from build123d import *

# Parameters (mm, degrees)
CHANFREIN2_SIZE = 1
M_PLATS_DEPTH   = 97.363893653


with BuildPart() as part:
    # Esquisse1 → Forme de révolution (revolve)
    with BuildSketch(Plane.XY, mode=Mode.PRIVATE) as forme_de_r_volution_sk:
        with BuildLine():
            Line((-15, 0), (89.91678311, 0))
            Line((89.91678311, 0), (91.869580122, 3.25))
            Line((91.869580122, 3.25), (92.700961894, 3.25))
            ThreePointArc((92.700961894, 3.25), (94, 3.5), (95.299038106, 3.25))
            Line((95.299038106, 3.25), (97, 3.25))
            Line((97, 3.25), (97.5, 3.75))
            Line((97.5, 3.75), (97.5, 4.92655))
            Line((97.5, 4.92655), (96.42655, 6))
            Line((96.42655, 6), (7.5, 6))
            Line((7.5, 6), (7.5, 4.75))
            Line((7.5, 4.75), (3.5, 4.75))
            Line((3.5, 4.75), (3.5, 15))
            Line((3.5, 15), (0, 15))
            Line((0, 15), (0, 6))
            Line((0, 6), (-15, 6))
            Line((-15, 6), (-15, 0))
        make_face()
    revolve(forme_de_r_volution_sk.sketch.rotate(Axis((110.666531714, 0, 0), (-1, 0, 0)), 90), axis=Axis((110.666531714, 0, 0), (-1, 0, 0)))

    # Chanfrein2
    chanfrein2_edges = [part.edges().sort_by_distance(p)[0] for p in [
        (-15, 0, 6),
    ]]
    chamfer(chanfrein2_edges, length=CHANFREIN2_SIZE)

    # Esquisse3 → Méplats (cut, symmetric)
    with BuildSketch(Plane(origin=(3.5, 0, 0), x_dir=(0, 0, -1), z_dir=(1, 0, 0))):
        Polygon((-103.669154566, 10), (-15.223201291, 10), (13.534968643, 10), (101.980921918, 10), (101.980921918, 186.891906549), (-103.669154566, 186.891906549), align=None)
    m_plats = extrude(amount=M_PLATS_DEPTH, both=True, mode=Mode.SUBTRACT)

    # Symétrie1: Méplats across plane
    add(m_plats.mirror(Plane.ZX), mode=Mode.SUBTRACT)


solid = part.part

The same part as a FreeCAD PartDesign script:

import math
import FreeCAD as App
import Part
import Sketcher
from FreeCAD import Vector
Q = App.Units.Quantity


def edges_at(feature, points):
    """Names of the edges that pass closest to the given points."""
    edges = feature.Shape.Edges
    near = lambda p: min(range(len(edges)), key=lambda i: edges[i].distToShape(Part.Vertex(*p))[0])
    return sorted({f"Edge{near(p) + 1}" for p in points})

doc = App.newDocument("Part")
body = doc.addObject("PartDesign::Body", "Body")

# Sketch on XY plane
sketch1 = body.newObject("Sketcher::SketchObject", "Sketch")
sketch1.AttachmentSupport = (doc.getObject("XY_Plane"), [""])
sketch1.MapMode = "FlatFace"
sketch1.addGeometry([
    Part.LineSegment(Vector(-15, 0, 0), Vector(89.9, 0, 0)),  # 0
    Part.LineSegment(Vector(89.9, 0, 0), Vector(91.9, 3.2, 0)),  # 1
    Part.LineSegment(Vector(91.9, 3.2, 0), Vector(92.7, 3.2, 0)),  # 2
    Part.ArcOfCircle(Part.Circle(Vector(94, 0, 0), Vector(0, 0, 1), 3.5), math.radians(68), math.radians(112)),  # 3
    Part.LineSegment(Vector(95.3, 3.2, 0), Vector(97, 3.2, 0)),  # 4
    Part.LineSegment(Vector(97, 3.2, 0), Vector(97.5, 3.8, 0)),  # 5
    Part.LineSegment(Vector(97.5, 3.8, 0), Vector(97.5, 4.9, 0)),  # 6
    Part.LineSegment(Vector(97.5, 4.9, 0), Vector(96.4, 6, 0)),  # 7
    Part.LineSegment(Vector(96.4, 6, 0), Vector(7.5, 6, 0)),  # 8
    Part.LineSegment(Vector(7.5, 6, 0), Vector(7.5, 4.8, 0)),  # 9
    Part.LineSegment(Vector(7.5, 4.8, 0), Vector(3.5, 4.8, 0)),  # 10
    Part.LineSegment(Vector(3.5, 4.8, 0), Vector(3.5, 15, 0)),  # 11
    Part.LineSegment(Vector(3.5, 15, 0), Vector(0, 15, 0)),  # 12
    Part.LineSegment(Vector(0, 15, 0), Vector(0, 6, 0)),  # 13
    Part.LineSegment(Vector(0, 6, 0), Vector(-15, 6, 0)),  # 14
    Part.LineSegment(Vector(-15, 6, 0), Vector(-15, 0, 0)),  # 15
], False)
sketch1.addConstraint([
    Sketcher.Constraint("Coincident", 0, 2, 1, 1),
    Sketcher.Constraint("Coincident", 1, 2, 2, 1),
    Sketcher.Constraint("Coincident", 2, 2, 3, 2),
    Sketcher.Constraint("Coincident", 3, 1, 4, 1),
    Sketcher.Constraint("Coincident", 4, 2, 5, 1),
    Sketcher.Constraint("Coincident", 5, 2, 6, 1),
    Sketcher.Constraint("Coincident", 6, 2, 7, 1),
    Sketcher.Constraint("Coincident", 7, 2, 8, 1),
    Sketcher.Constraint("Coincident", 8, 2, 9, 1),
    Sketcher.Constraint("Coincident", 9, 2, 10, 1),
    Sketcher.Constraint("Coincident", 10, 2, 11, 1),
    Sketcher.Constraint("Coincident", 11, 2, 12, 1),
    Sketcher.Constraint("Coincident", 12, 2, 13, 1),
    Sketcher.Constraint("Coincident", 13, 2, 14, 1),
    Sketcher.Constraint("Coincident", 14, 2, 15, 1),
    Sketcher.Constraint("Coincident", 15, 2, 0, 1),
    Sketcher.Constraint("Horizontal", 0),
    Sketcher.Constraint("Horizontal", 2),
    Sketcher.Constraint("Horizontal", 4),
    Sketcher.Constraint("Vertical", 6),
    Sketcher.Constraint("Horizontal", 8),
    Sketcher.Constraint("Vertical", 9),
    Sketcher.Constraint("Horizontal", 10),
    Sketcher.Constraint("Vertical", 11),
    Sketcher.Constraint("Horizontal", 12),
    Sketcher.Constraint("Vertical", 13),
    Sketcher.Constraint("Horizontal", 14),
    Sketcher.Constraint("Vertical", 15),
    Sketcher.Constraint("PointOnObject", 3, 3, -1),
    Sketcher.Constraint("PointOnObject", 0, 2, -1),
    Sketcher.Constraint("PointOnObject", 12, 2, -2),
    Sketcher.Constraint("Perpendicular", 5, 7),
    Sketcher.Constraint("Horizontal", 2, 2, 3, 1),
    Sketcher.Constraint("Horizontal", 8, 2, 13, 2),
    Sketcher.Constraint("Radius", 3, 3.5),
    Sketcher.Constraint("DistanceX", 10, 2, 10, 1, 4.0),
    Sketcher.Constraint("DistanceX", 14, 2, 14, 1, 15.0),
    Sketcher.Constraint("DistanceY", 13, 2, 13, 1, 9.0),
    Sketcher.Constraint("DistanceY", 15, 2, 15, 1, 6.0),
    Sketcher.Constraint("Angle", 1, Q("59 deg")),
    Sketcher.Constraint("Angle", 5, Q("45 deg")),
    Sketcher.Constraint("DistanceX", 12, 2, 12, 1, 3.5),
    Sketcher.Constraint("DistanceX", -1, 1, 3, 3, 94.0),
    Sketcher.Constraint("DistanceX", -1, 1, 4, 2, 97.0),
    Sketcher.Constraint("DistanceY", 9, 2, 9, 1, 1.25),
    Sketcher.Constraint("DistanceX", -1, 1, 5, 2, 97.5),
    Sketcher.Constraint("DistanceY", 1, 2, 9, 2, 1.5),
    Sketcher.Constraint("DistanceX", 2, 1, 2, 2, 0.831382),
    Sketcher.Constraint("DistanceX", 8, 2, 8, 1, 88.92655),
])
revolution = body.newObject("PartDesign::Revolution", "Revolution")
revolution.Profile = sketch1
revolution.ReferenceAxis = (sketch1, ["H_Axis"])
revolution.Angle = 360
doc.recompute()

chamfer = body.newObject("PartDesign::Chamfer", "Chamfer")
chamfer.Base = (revolution, edges_at(revolution, [(-15, 0, 6)]))
chamfer.Size = 1

# Sketch on YZ plane
sketch2 = body.newObject("Sketcher::SketchObject", "Sketch001")
sketch2.AttachmentSupport = (doc.getObject("YZ_Plane"), [""])
sketch2.MapMode = "FlatFace"
sketch2.AttachmentOffset = App.Placement(Vector(0, 0, 3.5), App.Rotation())
sketch2.addGeometry([
    Part.LineSegment(Vector(10, 104, 0), Vector(10, -102, 0)),
    Part.LineSegment(Vector(10, -102, 0), Vector(187, -102, 0)),
    Part.LineSegment(Vector(187, -102, 0), Vector(187, 104, 0)),
    Part.LineSegment(Vector(187, 104, 0), Vector(10, 104, 0)),
], False)
sketch2.addConstraint([
    Sketcher.Constraint("Coincident", 0, 2, 1, 1),
    Sketcher.Constraint("Coincident", 1, 2, 2, 1),
    Sketcher.Constraint("Coincident", 2, 2, 3, 1),
    Sketcher.Constraint("Coincident", 3, 2, 0, 1),
    Sketcher.Constraint("Vertical", 0),
    Sketcher.Constraint("Horizontal", 1),
    Sketcher.Constraint("Vertical", 2),
    Sketcher.Constraint("Horizontal", 3),
    Sketcher.Constraint("DistanceX", -1, 1, 0, 2, 10.0),
    Sketcher.Constraint("DistanceX", 1, 1, 1, 2, 176.891907),
    Sketcher.Constraint("DistanceY", 0, 2, 0, 1, 205.650076),
    Sketcher.Constraint("DistanceY", 0, 2, -1, 1, 101.980922),
])
pocket1 = body.newObject("PartDesign::Pocket", "Pocket")
pocket1.Profile = sketch2
pocket1.Length = 194.727787
pocket1.Midplane = True
doc.recompute()

mirrored = body.newObject("PartDesign::Mirrored", "Mirrored")
mirrored.Originals = [pocket1]
mirrored.MirrorPlane = (doc.getObject("XZ_Plane"), [""])
body.Tip = mirrored

doc.recompute()
